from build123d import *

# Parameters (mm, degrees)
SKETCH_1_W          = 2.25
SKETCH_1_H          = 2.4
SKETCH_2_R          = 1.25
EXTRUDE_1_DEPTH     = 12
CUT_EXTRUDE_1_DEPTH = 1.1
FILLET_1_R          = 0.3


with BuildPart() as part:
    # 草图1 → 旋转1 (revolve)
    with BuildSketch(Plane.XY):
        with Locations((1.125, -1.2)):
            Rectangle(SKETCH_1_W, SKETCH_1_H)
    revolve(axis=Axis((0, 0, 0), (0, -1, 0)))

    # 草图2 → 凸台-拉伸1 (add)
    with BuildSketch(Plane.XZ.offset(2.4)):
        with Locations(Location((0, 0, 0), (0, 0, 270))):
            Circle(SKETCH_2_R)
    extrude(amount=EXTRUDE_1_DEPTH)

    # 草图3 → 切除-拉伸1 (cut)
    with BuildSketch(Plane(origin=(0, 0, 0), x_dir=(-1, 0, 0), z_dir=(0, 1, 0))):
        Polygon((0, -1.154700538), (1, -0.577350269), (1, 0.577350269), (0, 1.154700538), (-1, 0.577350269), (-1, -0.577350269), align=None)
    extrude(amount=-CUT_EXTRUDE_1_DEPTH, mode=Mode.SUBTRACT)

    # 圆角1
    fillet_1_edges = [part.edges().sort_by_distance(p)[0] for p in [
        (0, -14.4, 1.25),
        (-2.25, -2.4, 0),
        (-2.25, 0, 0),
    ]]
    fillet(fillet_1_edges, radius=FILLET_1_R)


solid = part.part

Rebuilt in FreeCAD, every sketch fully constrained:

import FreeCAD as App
import Part
import Sketcher

V = App.Vector
Q = App.Units.Quantity


def edges_at(feature, points):
    """Names of the edges that pass closest to the given points."""
    edges = feature.Shape.Edges
    near = lambda p: min(range(len(edges)), key=lambda i: edges[i].distToShape(Part.Vertex(*p))[0])
    return sorted({f"Edge{near(p) + 1}" for p in points})

doc = App.newDocument("Part")
body = doc.addObject("PartDesign::Body", "Body")

# Sketch on XY plane
sketch1 = doc.addObject("Sketcher::SketchObject", "Sketch")
body.addObject(sketch1)
sketch1.AttachmentSupport = (doc.XY_Plane, [""])
sketch1.MapMode = "FlatFace"
sketch1.addGeometry([
    Part.LineSegment(V(0, 0, 0), V(0, -2.4, 0)),
    Part.LineSegment(V(0, -2.4, 0), V(2.25, -2.4, 0)),
    Part.LineSegment(V(2.25, -2.4, 0), V(2.25, 0, 0)),
    Part.LineSegment(V(2.25, 0, 0), V(0, 0, 0)),
], False)
sketch1.addConstraint([
    Sketcher.Constraint("Coincident", 0, 2, 1, 1),
    Sketcher.Constraint("Coincident", 1, 2, 2, 1),
    Sketcher.Constraint("Coincident", 2, 2, 3, 1),
    Sketcher.Constraint("Coincident", 3, 2, 0, 1),
    Sketcher.Constraint("Vertical", 0),
    Sketcher.Constraint("Horizontal", 1),
    Sketcher.Constraint("Vertical", 2),
    Sketcher.Constraint("Horizontal", 3),
    Sketcher.Constraint("Coincident", 3, 2, -1, 1),
    Sketcher.Constraint("DistanceY", 0, 2, 0, 1, Q("2.4 mm")),
    Sketcher.Constraint("DistanceX", 1, 1, 1, 2, Q("2.25 mm")),
])
revolution = doc.addObject("PartDesign::Revolution", "Revolution")
body.addObject(revolution)
revolution.Profile = sketch1
revolution.ReferenceAxis = (sketch1, ["V_Axis"])
revolution.Angle = 360

# Sketch on XZ plane
sketch2 = doc.addObject("Sketcher::SketchObject", "Sketch001")
body.addObject(sketch2)
sketch2.AttachmentSupport = (doc.XZ_Plane, [""])
sketch2.MapMode = "FlatFace"
sketch2.AttachmentOffset = App.Placement(V(0, 0, 2.4), App.Rotation())
sketch2.addGeometry(Part.Circle(V(0, 0, 0), V(0, 0, 1), 1.25), False)
sketch2.addConstraint([
    Sketcher.Constraint("Coincident", 0, 3, -1, 1),
    Sketcher.Constraint("Diameter", 0, Q("2.5 mm")),
])
pad1 = doc.addObject("PartDesign::Pad", "Pad")
body.addObject(pad1)
pad1.Profile = sketch2
pad1.Length = 12

# Sketch on XZ plane
sketch3 = doc.addObject("Sketcher::SketchObject", "Sketch002")
body.addObject(sketch3)
sketch3.AttachmentSupport = (doc.XZ_Plane, [""])
sketch3.MapMode = "FlatFace"
sketch3.addGeometry([
    Part.LineSegment(V(0, -1.154701, 0), V(-1, -0.57735, 0)),  # 0
    Part.LineSegment(V(-1, -0.57735, 0), V(-1, 0.57735, 0)),  # 1
    Part.LineSegment(V(-1, 0.57735, 0), V(0, 1.154701, 0)),  # 2
    Part.LineSegment(V(0, 1.154701, 0), V(1, 0.57735, 0)),  # 3
    Part.LineSegment(V(1, 0.57735, 0), V(1, -0.57735, 0)),  # 4
    Part.LineSegment(V(1, -0.57735, 0), V(0, -1.154701, 0)),  # 5
], False)
sketch3.addConstraint([
    Sketcher.Constraint("Coincident", 0, 2, 1, 1),
    Sketcher.Constraint("Coincident", 1, 2, 2, 1),
    Sketcher.Constraint("Coincident", 2, 2, 3, 1),
    Sketcher.Constraint("Coincident", 3, 2, 4, 1),
    Sketcher.Constraint("Coincident", 4, 2, 5, 1),
    Sketcher.Constraint("Coincident", 5, 2, 0, 1),
    Sketcher.Constraint("Vertical", 1),
    Sketcher.Constraint("Vertical", 4),
    Sketcher.Constraint("Symmetric", 0, 2, 3, 2, -1, 1),
    Sketcher.Constraint("Symmetric", 2, 2, 5, 2, -1, 1),
    Sketcher.Constraint("PointOnObject", 2, 2, -2),
    Sketcher.Constraint("Parallel", 2, 5),
    Sketcher.Constraint("Horizontal", 1, 2, 3, 2),
    Sketcher.Constraint("Angle", 0, Q("150 deg")),
    Sketcher.Constraint("DistanceX", 0, 2, -1, 1, Q("1 mm")),
    Sketcher.Constraint("DistanceY", 1, 1, 1, 2, Q("1.154701 mm")),
])
pocket1 = doc.addObject("PartDesign::Pocket", "Pocket")
body.addObject(pocket1)
pocket1.Profile = sketch3
pocket1.Length = 1.1
pocket1.Reversed = True
doc.recompute()

fillet = doc.addObject("PartDesign::Fillet", "Fillet")
body.addObject(fillet)
fillet.Base = (pocket1, edges_at(pocket1, [(0, -14.4, 1.25), (-2.25, -2.4, 0), (-2.25, 0, 0)]))
fillet.Radius = 0.3

doc.recompute()
